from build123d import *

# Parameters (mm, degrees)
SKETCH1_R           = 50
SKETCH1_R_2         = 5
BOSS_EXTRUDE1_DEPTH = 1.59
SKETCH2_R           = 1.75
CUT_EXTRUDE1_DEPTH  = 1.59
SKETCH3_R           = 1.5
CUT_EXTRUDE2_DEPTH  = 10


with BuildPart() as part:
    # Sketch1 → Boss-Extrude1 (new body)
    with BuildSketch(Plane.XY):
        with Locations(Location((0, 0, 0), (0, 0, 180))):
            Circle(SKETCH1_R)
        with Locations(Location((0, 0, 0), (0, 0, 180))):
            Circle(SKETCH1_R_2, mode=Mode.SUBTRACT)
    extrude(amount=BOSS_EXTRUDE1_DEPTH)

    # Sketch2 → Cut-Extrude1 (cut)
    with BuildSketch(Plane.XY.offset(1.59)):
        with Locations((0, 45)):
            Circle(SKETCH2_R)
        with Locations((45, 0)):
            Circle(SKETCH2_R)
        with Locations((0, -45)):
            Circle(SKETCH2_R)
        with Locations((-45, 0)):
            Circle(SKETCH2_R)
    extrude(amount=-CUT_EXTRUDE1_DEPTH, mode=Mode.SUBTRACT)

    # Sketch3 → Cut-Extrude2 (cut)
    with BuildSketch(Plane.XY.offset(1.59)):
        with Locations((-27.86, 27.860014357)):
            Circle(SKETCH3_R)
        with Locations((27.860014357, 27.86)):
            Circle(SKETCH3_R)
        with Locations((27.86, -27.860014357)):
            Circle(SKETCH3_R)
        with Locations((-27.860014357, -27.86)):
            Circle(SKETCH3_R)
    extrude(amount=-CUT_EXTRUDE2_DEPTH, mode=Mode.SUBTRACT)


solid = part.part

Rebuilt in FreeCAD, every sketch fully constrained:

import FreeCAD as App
import Part
import Sketcher

doc = App.newDocument("Part")
body = doc.addObject("PartDesign::Body", "Body")

# Sketch on XY plane
sketch1 = body.newObject("Sketcher::SketchObject", "Sketch")
sketch1.AttachmentSupport = (doc.getObject("XY_Plane"), [""])
sketch1.MapMode = "FlatFace"
sketch1.addGeometry([
    Part.Circle(App.Vector(0, 0, 0), App.Vector(0, 0, 1), 50),
    Part.Circle(App.Vector(0, 0, 0), App.Vector(0, 0, 1), 5),
], False)
sketch1.addConstraint([
    Sketcher.Constraint("Coincident", 0, 3, -1, 1),
    Sketcher.Constraint("Coincident", 1, 3, -1, 1),
    Sketcher.Constraint("Diameter", 0, 100.0),
    Sketcher.Constraint("Diameter", 1, 10.0),
])
pad1 = body.newObject("PartDesign::Pad", "Pad")
pad1.Profile = sketch1
pad1.Length = 1.59

# Sketch on XY plane
sketch2 = body.newObject("Sketcher::SketchObject", "Sketch001")
sketch2.AttachmentSupport = (doc.getObject("XY_Plane"), [""])
sketch2.MapMode = "FlatFace"
sketch2.AttachmentOffset = App.Placement(App.Vector(0, 0, 1.59), App.Rotation())
sketch2.addGeometry([
    Part.Circle(App.Vector(0, 45, 0), App.Vector(0, 0, 1), 1.8),
    Part.Circle(App.Vector(45, 0, 0), App.Vector(0, 0, 1), 1.8),
    Part.Circle(App.Vector(0, -45, 0), App.Vector(0, 0, 1), 1.8),
    Part.Circle(App.Vector(-45, 0, 0), App.Vector(0, 0, 1), 1.8),
], False)
sketch2.addConstraint([
    Sketcher.Constraint("Equal", 0, 1),
    Sketcher.Constraint("Equal", 1, 2),
    Sketcher.Constraint("Equal", 2, 3),
    Sketcher.Constraint("Symmetric", 0, 3, 2, 3, -1, 1),
    Sketcher.Constraint("Symmetric", 1, 3, 3, 3, -1, 1),
    Sketcher.Constraint("PointOnObject", 0, 3, -2),
    Sketcher.Constraint("PointOnObject", 1, 3, -1),
    Sketcher.Constraint("Diameter", 0, 3.5),
    Sketcher.Constraint("DistanceY", -1, 1, 0, 3, 45.0),
    Sketcher.Constraint("DistanceX", -1, 1, 1, 3, 45.0),
])
pocket1 = body.newObject("PartDesign::Pocket", "Pocket")
pocket1.Profile = sketch2
pocket1.Length = 1.59

# Sketch on XY plane
sketch3 = body.newObject("Sketcher::SketchObject", "Sketch002")
sketch3.AttachmentSupport = (doc.getObject("XY_Plane"), [""])
sketch3.MapMode = "FlatFace"
sketch3.AttachmentOffset = App.Placement(App.Vector(0, 0, 1.59), App.Rotation())
sketch3.addGeometry([
    Part.Circle(App.Vector(-27.9, 27.9, 0), App.Vector(0, 0, 1), 1.5),
    Part.Circle(App.Vector(27.9, 27.9, 0), App.Vector(0, 0, 1), 1.5),
    Part.Circle(App.Vector(27.9, -27.9, 0), App.Vector(0, 0, 1), 1.5),
    Part.Circle(App.Vector(-27.9, -27.9, 0), App.Vector(0, 0, 1), 1.5),
], False)
sketch3.addConstraint([
    Sketcher.Constraint("Equal", 0, 1),
    Sketcher.Constraint("Equal", 1, 2),
    Sketcher.Constraint("Equal", 2, 3),
    Sketcher.Constraint("Symmetric", 0, 3, 2, 3, -1, 1),
    Sketcher.Constraint("Symmetric", 1, 3, 3, 3, -1, 1),
    Sketcher.Constraint("Diameter", 0, 3.0),
    Sketcher.Constraint("DistanceX", 0, 3, -1, 1, 27.86),
    Sketcher.Constraint("DistanceY", -1, 1, 1, 3, 27.86),
    Sketcher.Constraint("DistanceY", 2, 3, 0, 3, 55.720029),
    Sketcher.Constraint("DistanceX", 3, 3, 1, 3, 55.720029),
])
pocket2 = body.newObject("PartDesign::Pocket", "Pocket001")
pocket2.Profile = sketch3
pocket2.Length = 10

doc.recompute()
